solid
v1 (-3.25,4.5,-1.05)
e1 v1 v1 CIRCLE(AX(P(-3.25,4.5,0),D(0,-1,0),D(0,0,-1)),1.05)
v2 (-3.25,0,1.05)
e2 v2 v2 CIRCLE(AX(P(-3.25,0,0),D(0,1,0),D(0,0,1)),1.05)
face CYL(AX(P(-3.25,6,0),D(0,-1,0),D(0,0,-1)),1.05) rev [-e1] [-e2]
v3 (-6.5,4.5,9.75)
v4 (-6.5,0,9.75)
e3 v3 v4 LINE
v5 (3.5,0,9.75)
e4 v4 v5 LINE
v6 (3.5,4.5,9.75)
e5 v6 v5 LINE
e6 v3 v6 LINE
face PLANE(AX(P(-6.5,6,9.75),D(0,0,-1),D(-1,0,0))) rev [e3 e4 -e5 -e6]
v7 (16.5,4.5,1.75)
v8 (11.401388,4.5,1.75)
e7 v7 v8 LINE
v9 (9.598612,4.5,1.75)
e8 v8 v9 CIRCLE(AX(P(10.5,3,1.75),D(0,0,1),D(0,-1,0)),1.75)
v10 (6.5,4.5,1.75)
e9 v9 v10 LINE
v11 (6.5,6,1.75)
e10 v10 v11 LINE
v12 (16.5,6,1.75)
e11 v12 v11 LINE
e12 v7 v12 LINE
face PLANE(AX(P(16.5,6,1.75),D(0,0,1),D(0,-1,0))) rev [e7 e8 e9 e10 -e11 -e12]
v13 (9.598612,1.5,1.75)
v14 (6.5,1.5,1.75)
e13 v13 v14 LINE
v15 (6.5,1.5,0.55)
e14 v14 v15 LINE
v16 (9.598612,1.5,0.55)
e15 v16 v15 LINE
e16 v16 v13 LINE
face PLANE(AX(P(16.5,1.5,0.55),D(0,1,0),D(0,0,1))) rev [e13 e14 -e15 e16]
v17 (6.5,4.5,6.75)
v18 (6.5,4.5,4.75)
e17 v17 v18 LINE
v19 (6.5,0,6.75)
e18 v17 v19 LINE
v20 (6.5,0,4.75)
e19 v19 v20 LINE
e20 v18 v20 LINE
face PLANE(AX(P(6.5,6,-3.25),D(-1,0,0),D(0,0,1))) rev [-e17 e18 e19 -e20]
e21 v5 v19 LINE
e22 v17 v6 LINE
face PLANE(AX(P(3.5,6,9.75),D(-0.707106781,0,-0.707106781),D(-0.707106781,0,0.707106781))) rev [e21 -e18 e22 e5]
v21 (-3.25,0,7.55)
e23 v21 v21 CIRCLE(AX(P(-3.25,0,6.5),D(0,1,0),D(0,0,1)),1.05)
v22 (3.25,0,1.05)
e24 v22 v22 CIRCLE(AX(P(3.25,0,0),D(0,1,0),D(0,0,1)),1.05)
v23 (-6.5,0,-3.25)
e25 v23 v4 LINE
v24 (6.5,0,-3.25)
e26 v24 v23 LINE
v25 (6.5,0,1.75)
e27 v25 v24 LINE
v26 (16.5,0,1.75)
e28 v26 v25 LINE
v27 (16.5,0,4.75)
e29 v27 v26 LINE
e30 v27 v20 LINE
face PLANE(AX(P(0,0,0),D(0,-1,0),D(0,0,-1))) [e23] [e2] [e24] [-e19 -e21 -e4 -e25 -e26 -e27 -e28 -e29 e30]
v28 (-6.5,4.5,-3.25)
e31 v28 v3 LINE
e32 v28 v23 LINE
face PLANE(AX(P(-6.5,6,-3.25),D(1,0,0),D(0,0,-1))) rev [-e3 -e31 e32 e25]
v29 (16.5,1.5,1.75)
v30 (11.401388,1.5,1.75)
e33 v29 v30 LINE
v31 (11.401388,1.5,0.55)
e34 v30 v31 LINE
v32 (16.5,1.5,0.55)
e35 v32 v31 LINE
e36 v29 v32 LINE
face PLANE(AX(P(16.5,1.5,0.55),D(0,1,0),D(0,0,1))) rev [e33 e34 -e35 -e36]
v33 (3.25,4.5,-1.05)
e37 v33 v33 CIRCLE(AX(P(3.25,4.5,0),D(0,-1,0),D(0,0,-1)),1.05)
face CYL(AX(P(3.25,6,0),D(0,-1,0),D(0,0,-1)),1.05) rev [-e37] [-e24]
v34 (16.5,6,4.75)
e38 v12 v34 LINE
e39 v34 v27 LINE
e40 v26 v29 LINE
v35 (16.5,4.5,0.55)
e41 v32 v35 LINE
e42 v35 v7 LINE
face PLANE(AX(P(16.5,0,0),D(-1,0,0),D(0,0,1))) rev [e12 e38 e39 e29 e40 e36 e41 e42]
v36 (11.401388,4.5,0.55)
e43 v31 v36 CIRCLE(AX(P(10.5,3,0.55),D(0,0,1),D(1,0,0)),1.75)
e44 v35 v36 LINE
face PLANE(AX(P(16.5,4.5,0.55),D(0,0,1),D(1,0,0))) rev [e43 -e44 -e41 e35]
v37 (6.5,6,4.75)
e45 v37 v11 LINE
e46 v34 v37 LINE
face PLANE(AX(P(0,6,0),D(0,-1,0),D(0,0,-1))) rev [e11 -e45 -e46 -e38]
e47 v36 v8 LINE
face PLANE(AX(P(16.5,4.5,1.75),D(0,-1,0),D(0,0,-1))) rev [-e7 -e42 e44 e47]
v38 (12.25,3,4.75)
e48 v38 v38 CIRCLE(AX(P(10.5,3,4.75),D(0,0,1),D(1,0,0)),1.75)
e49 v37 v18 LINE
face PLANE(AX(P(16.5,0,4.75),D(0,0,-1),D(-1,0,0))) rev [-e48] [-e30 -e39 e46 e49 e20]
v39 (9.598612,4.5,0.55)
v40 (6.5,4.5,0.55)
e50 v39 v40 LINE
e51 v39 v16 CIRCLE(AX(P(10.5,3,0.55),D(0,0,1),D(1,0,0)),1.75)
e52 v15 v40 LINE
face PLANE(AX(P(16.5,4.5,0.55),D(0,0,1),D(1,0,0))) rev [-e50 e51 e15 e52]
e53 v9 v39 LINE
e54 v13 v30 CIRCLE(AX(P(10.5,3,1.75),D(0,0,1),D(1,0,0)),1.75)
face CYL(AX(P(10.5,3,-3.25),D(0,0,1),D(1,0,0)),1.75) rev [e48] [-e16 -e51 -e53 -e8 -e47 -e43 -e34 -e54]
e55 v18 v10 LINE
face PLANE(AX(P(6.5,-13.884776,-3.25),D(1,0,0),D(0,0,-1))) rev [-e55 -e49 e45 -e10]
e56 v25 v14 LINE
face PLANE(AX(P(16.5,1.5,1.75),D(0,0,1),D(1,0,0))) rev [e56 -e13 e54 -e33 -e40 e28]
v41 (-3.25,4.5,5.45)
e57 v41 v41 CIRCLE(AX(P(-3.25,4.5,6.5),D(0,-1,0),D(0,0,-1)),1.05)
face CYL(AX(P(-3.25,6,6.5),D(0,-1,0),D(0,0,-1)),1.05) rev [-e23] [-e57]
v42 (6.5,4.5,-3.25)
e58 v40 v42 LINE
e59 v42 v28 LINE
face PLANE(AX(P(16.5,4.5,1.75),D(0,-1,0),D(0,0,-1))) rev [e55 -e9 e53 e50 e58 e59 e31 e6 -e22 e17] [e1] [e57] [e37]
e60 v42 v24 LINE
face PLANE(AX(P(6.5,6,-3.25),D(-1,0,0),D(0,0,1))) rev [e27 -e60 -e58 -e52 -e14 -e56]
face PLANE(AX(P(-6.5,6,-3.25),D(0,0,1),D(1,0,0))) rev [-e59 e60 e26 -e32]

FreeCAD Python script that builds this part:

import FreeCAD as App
import Part
import Sketcher
Q = App.Units.Quantity

doc = App.newDocument("Part")
body = doc.addObject("PartDesign::Body", "Body")

# Sketch on XZ plane
sketch1 = doc.addObject("Sketcher::SketchObject", "Sketch")
body.addObject(sketch1)
sketch1.AttachmentSupport = (doc.XZ_Plane, [""])
sketch1.MapMode = "FlatFace"
sketch1.addGeometry([
    Part.LineSegment(App.Vector(6.5, -3.25, 0), App.Vector(-6.5, -3.25, 0)),  # 0
    Part.LineSegment(App.Vector(-6.5, -3.25, 0), App.Vector(-6.5, 9.75, 0)),  # 1
    Part.LineSegment(App.Vector(-6.5, 9.75, 0), App.Vector(3.5, 9.75, 0)),  # 2
    Part.LineSegment(App.Vector(3.5, 9.75, 0), App.Vector(6.5, 6.75, 0)),  # 3
    Part.LineSegment(App.Vector(6.5, 6.75, 0), App.Vector(6.5, -3.25, 0)),  # 4
    Part.Circle(App.Vector(-3.25, 6.5, 0), App.Vector(0, 0, 1), 1.05),  # 5
    Part.Circle(App.Vector(3.25, 0, 0), App.Vector(0, 0, 1), 1.05),  # 6
    Part.Circle(App.Vector(-3.25, 0, 0), App.Vector(0, 0, 1), 1.05),  # 7
], False)
sketch1.addConstraint([
    Sketcher.Constraint("Coincident", 0, 2, 1, 1),
    Sketcher.Constraint("Coincident", 1, 2, 2, 1),
    Sketcher.Constraint("Coincident", 2, 2, 3, 1),
    Sketcher.Constraint("Coincident", 3, 2, 4, 1),
    Sketcher.Constraint("Coincident", 4, 2, 0, 1),
    Sketcher.Constraint("Horizontal", 0),
    Sketcher.Constraint("Vertical", 1),
    Sketcher.Constraint("Horizontal", 2),
    Sketcher.Constraint("Vertical", 4),
    Sketcher.Constraint("Equal", 5, 6),
    Sketcher.Constraint("Equal", 6, 7),
    Sketcher.Constraint("Symmetric", 6, 3, 7, 3, -1, 1),
    Sketcher.Constraint("PointOnObject", 6, 3, -1),
    Sketcher.Constraint("Vertical", 5, 3, 7, 3),
    Sketcher.Constraint("Equal", 0, 1),
    Sketcher.Constraint("Equal", 2, 4),
    Sketcher.Constraint("Diameter", 5, Q("2.1 mm")),
    Sketcher.Constraint("DistanceX", 0, 2, 0, 1, Q("13 mm")),
    Sketcher.Constraint("DistanceX", 2, 1, 2, 2, Q("10 mm")),
    Sketcher.Constraint("DistanceY", -1, 1, 5, 3, Q("6.5 mm")),
    Sketcher.Constraint("DistanceX", 0, 2, -1, 1, Q("6.5 mm")),
    Sketcher.Constraint("DistanceX", 5, 3, 6, 3, Q("6.5 mm")),
    Sketcher.Constraint("DistanceY", 0, 2, -1, 1, Q("3.25 mm")),
])
pad1 = doc.addObject("PartDesign::Pad", "Pad")
body.addObject(pad1)
pad1.Profile = sketch1
pad1.Length = 6
pad1.Reversed = True

# Sketch on YZ plane
sketch2 = doc.addObject("Sketcher::SketchObject", "Sketch001")
body.addObject(sketch2)
sketch2.AttachmentSupport = (doc.YZ_Plane, [""])
sketch2.MapMode = "FlatFace"
sketch2.AttachmentOffset = App.Placement(App.Vector(0, 0, 6.5), App.Rotation())
sketch2.addGeometry([
    Part.LineSegment(App.Vector(4.5, 1.75, 0), App.Vector(6, 1.75, 0)),  # 0
    Part.LineSegment(App.Vector(6, 1.75, 0), App.Vector(6, 4.75, 0)),  # 1
    Part.LineSegment(App.Vector(6, 4.75, 0), App.Vector(0, 4.75, 0)),  # 2
    Part.LineSegment(App.Vector(0, 4.75, 0), App.Vector(0, 1.75, 0)),  # 3
    Part.LineSegment(App.Vector(0, 1.75, 0), App.Vector(1.5, 1.75, 0)),  # 4
    Part.LineSegment(App.Vector(1.5, 1.75, 0), App.Vector(1.5, 0.55, 0)),  # 5
    Part.LineSegment(App.Vector(1.5, 0.55, 0), App.Vector(4.5, 0.55, 0)),  # 6
    Part.LineSegment(App.Vector(4.5, 0.55, 0), App.Vector(4.5, 1.75, 0)),  # 7
], False)
sketch2.addConstraint([
    Sketcher.Constraint("Coincident", 0, 2, 1, 1),
    Sketcher.Constraint("Coincident", 1, 2, 2, 1),
    Sketcher.Constraint("Coincident", 2, 2, 3, 1),
    Sketcher.Constraint("Coincident", 3, 2, 4, 1),
    Sketcher.Constraint("Coincident", 4, 2, 5, 1),
    Sketcher.Constraint("Coincident", 5, 2, 6, 1),
    Sketcher.Constraint("Coincident", 6, 2, 7, 1),
    Sketcher.Constraint("Coincident", 7, 2, 0, 1),
    Sketcher.Constraint("Horizontal", 0),
    Sketcher.Constraint("Vertical", 1),
    Sketcher.Constraint("Horizontal", 2),
    Sketcher.Constraint("Vertical", 3),
    Sketcher.Constraint("Horizontal", 4),
    Sketcher.Constraint("Vertical", 5),
    Sketcher.Constraint("Horizontal", 6),
    Sketcher.Constraint("Vertical", 7),
    Sketcher.Constraint("PointOnObject", 2, 2, -2),
    Sketcher.Constraint("Horizontal", 0, 2, 3, 2),
    Sketcher.Constraint("Equal", 0, 4),
    Sketcher.Constraint("Equal", 6, 1),
    Sketcher.Constraint("DistanceX", 2, 2, 2, 1, Q("6 mm")),
    Sketcher.Constraint("DistanceX", 6, 1, 6, 2, Q("3 mm")),
    Sketcher.Constraint("DistanceY", 5, 2, 5, 1, Q("1.2 mm")),
    Sketcher.Constraint("DistanceY", -1, 1, 0, 2, Q("1.75 mm")),
])
pad2 = doc.addObject("PartDesign::Pad", "Pad001")
body.addObject(pad2)
pad2.Profile = sketch2
pad2.Length = 10

# Sketch on XY plane
sketch3 = doc.addObject("Sketcher::SketchObject", "Sketch002")
body.addObject(sketch3)
sketch3.AttachmentSupport = (doc.XY_Plane, [""])
sketch3.MapMode = "FlatFace"
sketch3.AttachmentOffset = App.Placement(App.Vector(0, 0, 4.75), App.Rotation())
sketch3.addGeometry(Part.Circle(App.Vector(10.5, 3, 0), App.Vector(0, 0, 1), 1.75), False)
sketch3.addConstraint([
    Sketcher.Constraint("Diameter", 0, Q("3.5 mm")),
    Sketcher.Constraint("DistanceY", -1, 1, 0, 3, Q("3 mm")),
    Sketcher.Constraint("DistanceX", -1, 1, 0, 3, Q("10.5 mm")),
])
pocket1 = doc.addObject("PartDesign::Pocket", "Pocket")
body.addObject(pocket1)
pocket1.Profile = sketch3
pocket1.Type = "ThroughAll"

# Sketch on XZ plane
sketch4 = doc.addObject("Sketcher::SketchObject", "Sketch003")
body.addObject(sketch4)
sketch4.AttachmentSupport = (doc.XZ_Plane, [""])
sketch4.MapMode = "FlatFace"
sketch4.AttachmentOffset = App.Placement(App.Vector(0, 0, -6), App.Rotation())
sketch4.addGeometry([
    Part.LineSegment(App.Vector(-6.5, -3.25, 0), App.Vector(-6.5, 9.75, 0)),
    Part.LineSegment(App.Vector(-6.5, 9.75, 0), App.Vector(6.5, 9.75, 0)),
    Part.LineSegment(App.Vector(6.5, 9.75, 0), App.Vector(6.5, -3.25, 0)),
    Part.LineSegment(App.Vector(6.5, -3.25, 0), App.Vector(-6.5, -3.25, 0)),
], False)
sketch4.addConstraint([
    Sketcher.Constraint("Coincident", 0, 2, 1, 1),
    Sketcher.Constraint("Coincident", 1, 2, 2, 1),
    Sketcher.Constraint("Coincident", 2, 2, 3, 1),
    Sketcher.Constraint("Coincident", 3, 2, 0, 1),
    Sketcher.Constraint("Vertical", 0),
    Sketcher.Constraint("Horizontal", 1),
    Sketcher.Constraint("Vertical", 2),
    Sketcher.Constraint("Horizontal", 3),
    Sketcher.Constraint("Equal", 3, 0),
    Sketcher.Constraint("DistanceX", 1, 1, 1, 2, Q("13 mm")),
    Sketcher.Constraint("DistanceX", 0, 2, -1, 1, Q("6.5 mm")),
    Sketcher.Constraint("DistanceY", -1, 1, 0, 2, Q("9.75 mm")),
])
pocket2 = doc.addObject("PartDesign::Pocket", "Pocket001")
body.addObject(pocket2)
pocket2.Profile = sketch4
pocket2.Length = 1.5
pocket2.Reversed = True

doc.recompute()
